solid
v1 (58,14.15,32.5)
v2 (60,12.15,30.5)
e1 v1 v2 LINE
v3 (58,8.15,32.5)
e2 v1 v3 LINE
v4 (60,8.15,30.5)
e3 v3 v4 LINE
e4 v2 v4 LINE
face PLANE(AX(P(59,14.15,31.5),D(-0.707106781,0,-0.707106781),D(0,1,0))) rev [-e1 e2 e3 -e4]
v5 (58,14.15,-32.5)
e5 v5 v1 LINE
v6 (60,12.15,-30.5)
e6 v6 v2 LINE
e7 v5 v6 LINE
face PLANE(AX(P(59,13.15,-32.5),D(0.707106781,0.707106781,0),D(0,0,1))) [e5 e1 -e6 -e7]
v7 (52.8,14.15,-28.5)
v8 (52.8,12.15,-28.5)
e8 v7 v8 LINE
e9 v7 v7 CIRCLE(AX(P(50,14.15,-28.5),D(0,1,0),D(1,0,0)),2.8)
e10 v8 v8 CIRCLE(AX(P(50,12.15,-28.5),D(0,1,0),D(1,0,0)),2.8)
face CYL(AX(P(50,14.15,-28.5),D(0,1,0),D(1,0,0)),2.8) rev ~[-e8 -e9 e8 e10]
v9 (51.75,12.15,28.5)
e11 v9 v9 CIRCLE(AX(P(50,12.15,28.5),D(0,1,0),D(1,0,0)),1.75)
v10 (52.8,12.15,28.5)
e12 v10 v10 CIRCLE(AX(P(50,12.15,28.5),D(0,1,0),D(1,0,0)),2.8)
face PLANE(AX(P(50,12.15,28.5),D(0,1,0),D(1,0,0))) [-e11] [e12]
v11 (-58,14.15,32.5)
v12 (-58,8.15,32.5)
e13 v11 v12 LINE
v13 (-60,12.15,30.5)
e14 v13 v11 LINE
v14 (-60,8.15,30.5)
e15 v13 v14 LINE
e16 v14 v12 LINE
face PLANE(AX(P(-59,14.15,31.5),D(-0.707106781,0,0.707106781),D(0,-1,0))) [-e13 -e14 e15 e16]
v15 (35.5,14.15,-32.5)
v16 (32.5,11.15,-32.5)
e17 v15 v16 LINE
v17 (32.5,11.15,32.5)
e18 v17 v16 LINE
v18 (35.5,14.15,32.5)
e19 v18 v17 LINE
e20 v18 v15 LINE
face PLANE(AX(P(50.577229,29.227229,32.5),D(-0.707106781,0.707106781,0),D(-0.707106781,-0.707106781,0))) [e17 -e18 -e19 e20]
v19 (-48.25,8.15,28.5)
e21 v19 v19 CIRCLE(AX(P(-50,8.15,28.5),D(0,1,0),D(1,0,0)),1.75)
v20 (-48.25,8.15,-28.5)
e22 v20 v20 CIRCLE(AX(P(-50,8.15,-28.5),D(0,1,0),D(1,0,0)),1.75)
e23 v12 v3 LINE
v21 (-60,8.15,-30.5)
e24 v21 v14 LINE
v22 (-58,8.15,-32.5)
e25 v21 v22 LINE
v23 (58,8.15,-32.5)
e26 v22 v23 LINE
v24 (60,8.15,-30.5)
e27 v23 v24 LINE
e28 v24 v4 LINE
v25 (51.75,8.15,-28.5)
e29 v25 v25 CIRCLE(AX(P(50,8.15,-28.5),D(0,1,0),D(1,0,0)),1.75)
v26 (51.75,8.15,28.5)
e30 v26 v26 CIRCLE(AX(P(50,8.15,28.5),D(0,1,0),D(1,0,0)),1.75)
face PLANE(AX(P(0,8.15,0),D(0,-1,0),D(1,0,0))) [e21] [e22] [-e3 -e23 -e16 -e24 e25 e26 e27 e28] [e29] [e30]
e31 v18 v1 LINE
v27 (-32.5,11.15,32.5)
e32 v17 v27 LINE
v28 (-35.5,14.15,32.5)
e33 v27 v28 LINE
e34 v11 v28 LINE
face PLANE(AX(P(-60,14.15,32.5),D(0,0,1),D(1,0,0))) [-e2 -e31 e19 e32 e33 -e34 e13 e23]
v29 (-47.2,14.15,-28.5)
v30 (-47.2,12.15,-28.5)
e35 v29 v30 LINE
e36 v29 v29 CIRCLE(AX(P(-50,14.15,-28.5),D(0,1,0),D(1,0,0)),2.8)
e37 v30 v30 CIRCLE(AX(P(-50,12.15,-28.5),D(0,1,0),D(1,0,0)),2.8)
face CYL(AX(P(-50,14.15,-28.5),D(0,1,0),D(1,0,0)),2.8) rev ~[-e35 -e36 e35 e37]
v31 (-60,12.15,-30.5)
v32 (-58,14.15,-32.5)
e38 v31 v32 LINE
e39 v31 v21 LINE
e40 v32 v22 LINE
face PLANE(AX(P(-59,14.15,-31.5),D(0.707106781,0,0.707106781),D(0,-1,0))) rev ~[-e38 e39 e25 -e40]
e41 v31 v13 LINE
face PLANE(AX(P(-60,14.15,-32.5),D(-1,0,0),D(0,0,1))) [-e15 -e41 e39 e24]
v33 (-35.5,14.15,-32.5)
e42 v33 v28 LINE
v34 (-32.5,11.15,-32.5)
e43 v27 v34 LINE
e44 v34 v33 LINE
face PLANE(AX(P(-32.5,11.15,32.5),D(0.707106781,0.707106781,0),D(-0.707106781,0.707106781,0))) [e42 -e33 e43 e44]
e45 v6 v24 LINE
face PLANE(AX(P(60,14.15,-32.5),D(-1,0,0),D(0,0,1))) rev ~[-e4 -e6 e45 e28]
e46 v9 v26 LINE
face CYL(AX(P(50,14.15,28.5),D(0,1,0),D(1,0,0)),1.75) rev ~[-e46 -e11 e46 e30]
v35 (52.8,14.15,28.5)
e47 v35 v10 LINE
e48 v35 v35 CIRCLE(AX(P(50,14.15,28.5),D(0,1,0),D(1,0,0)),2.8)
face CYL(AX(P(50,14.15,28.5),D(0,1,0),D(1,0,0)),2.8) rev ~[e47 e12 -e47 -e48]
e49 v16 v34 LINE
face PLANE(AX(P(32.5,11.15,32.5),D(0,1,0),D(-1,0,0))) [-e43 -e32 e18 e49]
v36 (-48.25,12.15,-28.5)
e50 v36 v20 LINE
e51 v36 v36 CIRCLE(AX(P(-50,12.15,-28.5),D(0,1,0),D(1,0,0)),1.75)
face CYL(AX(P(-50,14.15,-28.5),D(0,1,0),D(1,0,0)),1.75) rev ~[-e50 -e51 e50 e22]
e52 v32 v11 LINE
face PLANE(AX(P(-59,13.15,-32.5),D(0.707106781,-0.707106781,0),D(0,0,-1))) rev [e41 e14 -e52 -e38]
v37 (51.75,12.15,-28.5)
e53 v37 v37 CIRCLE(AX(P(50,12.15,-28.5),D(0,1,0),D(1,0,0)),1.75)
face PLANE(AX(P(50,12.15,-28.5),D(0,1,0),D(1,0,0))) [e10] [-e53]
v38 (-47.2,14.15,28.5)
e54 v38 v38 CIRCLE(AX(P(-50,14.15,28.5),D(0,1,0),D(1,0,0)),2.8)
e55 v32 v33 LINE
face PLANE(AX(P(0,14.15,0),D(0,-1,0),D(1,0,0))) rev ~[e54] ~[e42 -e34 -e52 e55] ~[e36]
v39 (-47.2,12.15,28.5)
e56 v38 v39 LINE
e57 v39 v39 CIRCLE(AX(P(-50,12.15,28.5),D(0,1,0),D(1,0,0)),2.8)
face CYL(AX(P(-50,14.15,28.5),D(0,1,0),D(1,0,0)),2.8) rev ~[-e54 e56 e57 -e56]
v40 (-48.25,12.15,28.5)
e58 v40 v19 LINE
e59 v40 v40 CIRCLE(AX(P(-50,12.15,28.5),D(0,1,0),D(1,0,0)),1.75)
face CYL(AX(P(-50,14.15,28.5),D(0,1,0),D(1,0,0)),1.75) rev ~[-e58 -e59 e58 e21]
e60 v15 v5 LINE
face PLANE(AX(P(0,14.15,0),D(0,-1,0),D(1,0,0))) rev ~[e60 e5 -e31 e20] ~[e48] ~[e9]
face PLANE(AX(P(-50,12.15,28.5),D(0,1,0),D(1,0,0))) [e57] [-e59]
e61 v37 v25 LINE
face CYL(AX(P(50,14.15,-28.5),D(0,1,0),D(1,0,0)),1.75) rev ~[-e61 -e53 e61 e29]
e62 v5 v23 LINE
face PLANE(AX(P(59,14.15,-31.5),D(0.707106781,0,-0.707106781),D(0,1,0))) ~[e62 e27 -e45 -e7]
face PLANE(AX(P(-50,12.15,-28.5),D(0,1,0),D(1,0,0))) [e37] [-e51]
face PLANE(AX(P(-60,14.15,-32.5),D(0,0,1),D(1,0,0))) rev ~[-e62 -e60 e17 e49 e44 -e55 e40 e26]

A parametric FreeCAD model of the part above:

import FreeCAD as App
import Part
import Sketcher
Q = App.Units.Quantity


def edges_at(feature, points):
    """Names of the edges that pass closest to the given points."""
    edges = feature.Shape.Edges
    near = lambda p: min(range(len(edges)), key=lambda i: edges[i].distToShape(Part.Vertex(*p))[0])
    return sorted({f"Edge{near(p) + 1}" for p in points})

doc = App.newDocument("Part")
body = doc.addObject("PartDesign::Body", "Body")

# Sketch on XZ plane
sketch1 = doc.addObject("Sketcher::SketchObject", "Sketch")
body.addObject(sketch1)
sketch1.AttachmentSupport = (doc.XZ_Plane, [""])
sketch1.MapMode = "FlatFace"
sketch1.addGeometry([
    Part.LineSegment(App.Vector(-60, 32, 0), App.Vector(-60, -32, 0)),
    Part.LineSegment(App.Vector(-60, -32, 0), App.Vector(60, -32, 0)),
    Part.LineSegment(App.Vector(60, -32, 0), App.Vector(60, 32, 0)),
    Part.LineSegment(App.Vector(60, 32, 0), App.Vector(-60, 32, 0)),
], False)
sketch1.addConstraint([
    Sketcher.Constraint("Coincident", 0, 2, 1, 1),
    Sketcher.Constraint("Coincident", 1, 2, 2, 1),
    Sketcher.Constraint("Coincident", 2, 2, 3, 1),
    Sketcher.Constraint("Coincident", 3, 2, 0, 1),
    Sketcher.Constraint("Vertical", 0),
    Sketcher.Constraint("Horizontal", 1),
    Sketcher.Constraint("Vertical", 2),
    Sketcher.Constraint("Horizontal", 3),
    Sketcher.Constraint("Symmetric", 0, 2, 2, 2, -1, 1),
    Sketcher.Constraint("DistanceX", 1, 1, 1, 2, Q("120 mm")),
    Sketcher.Constraint("DistanceY", 0, 2, 0, 1, Q("65 mm")),
])
pad1 = doc.addObject("PartDesign::Pad", "Pad")
body.addObject(pad1)
pad1.Profile = sketch1
pad1.Length = 6

# Sketch on XY plane
sketch2 = doc.addObject("Sketcher::SketchObject", "Sketch001")
body.addObject(sketch2)
sketch2.AttachmentSupport = (doc.XY_Plane, [""])
sketch2.MapMode = "FlatFace"
sketch2.AttachmentOffset = App.Placement(App.Vector(0, 0, 32.5), App.Rotation())
sketch2.addGeometry([
    Part.LineSegment(App.Vector(50.81, 15.08, 0), App.Vector(73.61, 3.67, 0)),  # 0
    Part.LineSegment(App.Vector(73.61, 3.67, 0), App.Vector(87.28, 33.74, 0)),  # 1
    Part.LineSegment(App.Vector(87.28, 33.74, 0), App.Vector(-73.61, 24.46, 0)),  # 2
    Part.LineSegment(App.Vector(-73.61, 24.46, 0), App.Vector(-73.61, 3.67, 0)),  # 3
    Part.LineSegment(App.Vector(-73.61, 3.67, 0), App.Vector(-50.81, 15.08, 0)),  # 4
    Part.LineSegment(App.Vector(-50.81, 15.08, 0), App.Vector(-50.58, 15.08, 0)),  # 5
    Part.LineSegment(App.Vector(-50.58, 15.08, 0), App.Vector(-32.5, -3, 0)),  # 6
    Part.LineSegment(App.Vector(-32.5, -3, 0), App.Vector(32.5, -3, 0)),  # 7
    Part.LineSegment(App.Vector(32.5, -3, 0), App.Vector(50.58, 15.08, 0)),  # 8
    Part.LineSegment(App.Vector(50.58, 15.08, 0), App.Vector(50.81, 15.08, 0)),  # 9
], False)
sketch2.addConstraint([
    Sketcher.Constraint("Coincident", 0, 2, 1, 1),
    Sketcher.Constraint("Coincident", 1, 2, 2, 1),
    Sketcher.Constraint("Coincident", 2, 2, 3, 1),
    Sketcher.Constraint("Coincident", 3, 2, 4, 1),
    Sketcher.Constraint("Coincident", 4, 2, 5, 1),
    Sketcher.Constraint("Coincident", 5, 2, 6, 1),
    Sketcher.Constraint("Coincident", 6, 2, 7, 1),
    Sketcher.Constraint("Coincident", 7, 2, 8, 1),
    Sketcher.Constraint("Coincident", 8, 2, 9, 1),
    Sketcher.Constraint("Coincident", 9, 2, 0, 1),
    Sketcher.Constraint("Vertical", 3),
    Sketcher.Constraint("Horizontal", 5),
    Sketcher.Constraint("Horizontal", 7),
    Sketcher.Constraint("Horizontal", 9),
    Sketcher.Constraint("Symmetric", 0, 2, 3, 2, -2),
    Sketcher.Constraint("Symmetric", 5, 2, 8, 2, -2),
    Sketcher.Constraint("Perpendicular", 6, 8),
    Sketcher.Constraint("Equal", 5, 9),
    Sketcher.Constraint("Equal", 6, 8),
    Sketcher.Constraint("DistanceX", 7, 1, 7, 2, Q("65 mm")),
    Sketcher.Constraint("DistanceY", 6, 2, -1, 1, Q("3 mm")),
    Sketcher.Constraint("DistanceX", 5, 1, 5, 2, Q("0.232711 mm")),
    Sketcher.Constraint("DistanceX", 2, 2, 0, 2, Q("147.2173 mm")),
    Sketcher.Constraint("Distance", 0, Q("25.49348 mm")),
    Sketcher.Constraint("DistanceY", 3, 2, 3, 1, Q("20.789353 mm")),
    Sketcher.Constraint("DistanceX", -1, 1, 1, 2, Q("87.275108 mm")),
    Sketcher.Constraint("DistanceY", -1, 1, 1, 2, Q("33.737259 mm")),
    Sketcher.Constraint("DistanceY", -1, 1, 2, 2, Q("24.458851 mm")),
])
pocket1 = doc.addObject("PartDesign::Pocket", "Pocket")
body.addObject(pocket1)
pocket1.Profile = sketch2
pocket1.Type = "ThroughAll"
doc.recompute()

chamfer = doc.addObject("PartDesign::Chamfer", "Chamfer")
body.addObject(chamfer)
chamfer.Base = (pocket1, edges_at(pocket1, [
    (60, -3, -32.5),
    (60, -3, 32.5),
    (60, 0, 0),
    (-60, -3, -32.5),
    (-60, 0, 0),
    (-60, -3, 32.5),
]))
chamfer.Size = 2

# Sketch on XZ plane
sketch3 = doc.addObject("Sketcher::SketchObject", "Sketch002")
body.addObject(sketch3)
sketch3.AttachmentSupport = (doc.XZ_Plane, [""])
sketch3.MapMode = "FlatFace"
sketch3.addGeometry([
    Part.Circle(App.Vector(-50, -28.5, 0), App.Vector(0, 0, 1), 1.8),
    Part.Circle(App.Vector(-50, 28.5, 0), App.Vector(0, 0, 1), 1.8),
    Part.Circle(App.Vector(50, -28.5, 0), App.Vector(0, 0, 1), 1.8),
    Part.Circle(App.Vector(50, 28.5, 0), App.Vector(0, 0, 1), 1.8),
], False)
sketch3.addConstraint([
    Sketcher.Constraint("Equal", 0, 1),
    Sketcher.Constraint("Equal", 1, 2),
    Sketcher.Constraint("Equal", 2, 3),
    Sketcher.Constraint("Symmetric", 1, 3, 2, 3, -1, 1),
    Sketcher.Constraint("Symmetric", 0, 3, 3, 3, -1, 1),
    Sketcher.Constraint("Symmetric", 0, 3, 2, 3, -2),
    Sketcher.Constraint("Diameter", 0, Q("3.5 mm")),
    Sketcher.Constraint("DistanceX", 0, 3, -1, 1, Q("50 mm")),
    Sketcher.Constraint("DistanceY", 0, 3, 1, 3, Q("57 mm")),
])
pocket2 = doc.addObject("PartDesign::Pocket", "Pocket001")
body.addObject(pocket2)
pocket2.Profile = sketch3
pocket2.Type = "ThroughAll"
pocket2.Reversed = True

# Sketch on XZ plane
sketch4 = doc.addObject("Sketcher::SketchObject", "Sketch003")
body.addObject(sketch4)
sketch4.AttachmentSupport = (doc.XZ_Plane, [""])
sketch4.MapMode = "FlatFace"
sketch4.addGeometry([
    Part.Circle(App.Vector(-50, -28.5, 0), App.Vector(0, 0, 1), 2.8),
    Part.Circle(App.Vector(-50, 28.5, 0), App.Vector(0, 0, 1), 2.8),
    Part.Circle(App.Vector(50, -28.5, 0), App.Vector(0, 0, 1), 2.8),
    Part.Circle(App.Vector(50, 28.5, 0), App.Vector(0, 0, 1), 2.8),
], False)
sketch4.addConstraint([
    Sketcher.Constraint("Equal", 0, 1),
    Sketcher.Constraint("Equal", 1, 2),
    Sketcher.Constraint("Equal", 2, 3),
    Sketcher.Constraint("Symmetric", 1, 3, 2, 3, -1, 1),
    Sketcher.Constraint("Symmetric", 0, 3, 3, 3, -1, 1),
    Sketcher.Constraint("Symmetric", 0, 3, 2, 3, -2),
    Sketcher.Constraint("Diameter", 0, Q("5.6 mm")),
    Sketcher.Constraint("DistanceX", 0, 3, -1, 1, Q("50 mm")),
    Sketcher.Constraint("DistanceY", 0, 3, 1, 3, Q("57 mm")),
])
pocket3 = doc.addObject("PartDesign::Pocket", "Pocket002")
body.addObject(pocket3)
pocket3.Profile = sketch4
pocket3.Length = 2
pocket3.Reversed = True
body2 = doc.addObject("PartDesign::Body", "Body001")
doc.recompute()

body.Placement = App.Placement(App.Vector(0, 14.15, 0), App.Rotation(App.Vector(0, 0, 1), 0))
boolean = doc.addObject("PartDesign::Boolean", "Boolean")
body2.addObject(boolean)
boolean.Type = "Fuse"
boolean.addObjects([body])

doc.recompute()
